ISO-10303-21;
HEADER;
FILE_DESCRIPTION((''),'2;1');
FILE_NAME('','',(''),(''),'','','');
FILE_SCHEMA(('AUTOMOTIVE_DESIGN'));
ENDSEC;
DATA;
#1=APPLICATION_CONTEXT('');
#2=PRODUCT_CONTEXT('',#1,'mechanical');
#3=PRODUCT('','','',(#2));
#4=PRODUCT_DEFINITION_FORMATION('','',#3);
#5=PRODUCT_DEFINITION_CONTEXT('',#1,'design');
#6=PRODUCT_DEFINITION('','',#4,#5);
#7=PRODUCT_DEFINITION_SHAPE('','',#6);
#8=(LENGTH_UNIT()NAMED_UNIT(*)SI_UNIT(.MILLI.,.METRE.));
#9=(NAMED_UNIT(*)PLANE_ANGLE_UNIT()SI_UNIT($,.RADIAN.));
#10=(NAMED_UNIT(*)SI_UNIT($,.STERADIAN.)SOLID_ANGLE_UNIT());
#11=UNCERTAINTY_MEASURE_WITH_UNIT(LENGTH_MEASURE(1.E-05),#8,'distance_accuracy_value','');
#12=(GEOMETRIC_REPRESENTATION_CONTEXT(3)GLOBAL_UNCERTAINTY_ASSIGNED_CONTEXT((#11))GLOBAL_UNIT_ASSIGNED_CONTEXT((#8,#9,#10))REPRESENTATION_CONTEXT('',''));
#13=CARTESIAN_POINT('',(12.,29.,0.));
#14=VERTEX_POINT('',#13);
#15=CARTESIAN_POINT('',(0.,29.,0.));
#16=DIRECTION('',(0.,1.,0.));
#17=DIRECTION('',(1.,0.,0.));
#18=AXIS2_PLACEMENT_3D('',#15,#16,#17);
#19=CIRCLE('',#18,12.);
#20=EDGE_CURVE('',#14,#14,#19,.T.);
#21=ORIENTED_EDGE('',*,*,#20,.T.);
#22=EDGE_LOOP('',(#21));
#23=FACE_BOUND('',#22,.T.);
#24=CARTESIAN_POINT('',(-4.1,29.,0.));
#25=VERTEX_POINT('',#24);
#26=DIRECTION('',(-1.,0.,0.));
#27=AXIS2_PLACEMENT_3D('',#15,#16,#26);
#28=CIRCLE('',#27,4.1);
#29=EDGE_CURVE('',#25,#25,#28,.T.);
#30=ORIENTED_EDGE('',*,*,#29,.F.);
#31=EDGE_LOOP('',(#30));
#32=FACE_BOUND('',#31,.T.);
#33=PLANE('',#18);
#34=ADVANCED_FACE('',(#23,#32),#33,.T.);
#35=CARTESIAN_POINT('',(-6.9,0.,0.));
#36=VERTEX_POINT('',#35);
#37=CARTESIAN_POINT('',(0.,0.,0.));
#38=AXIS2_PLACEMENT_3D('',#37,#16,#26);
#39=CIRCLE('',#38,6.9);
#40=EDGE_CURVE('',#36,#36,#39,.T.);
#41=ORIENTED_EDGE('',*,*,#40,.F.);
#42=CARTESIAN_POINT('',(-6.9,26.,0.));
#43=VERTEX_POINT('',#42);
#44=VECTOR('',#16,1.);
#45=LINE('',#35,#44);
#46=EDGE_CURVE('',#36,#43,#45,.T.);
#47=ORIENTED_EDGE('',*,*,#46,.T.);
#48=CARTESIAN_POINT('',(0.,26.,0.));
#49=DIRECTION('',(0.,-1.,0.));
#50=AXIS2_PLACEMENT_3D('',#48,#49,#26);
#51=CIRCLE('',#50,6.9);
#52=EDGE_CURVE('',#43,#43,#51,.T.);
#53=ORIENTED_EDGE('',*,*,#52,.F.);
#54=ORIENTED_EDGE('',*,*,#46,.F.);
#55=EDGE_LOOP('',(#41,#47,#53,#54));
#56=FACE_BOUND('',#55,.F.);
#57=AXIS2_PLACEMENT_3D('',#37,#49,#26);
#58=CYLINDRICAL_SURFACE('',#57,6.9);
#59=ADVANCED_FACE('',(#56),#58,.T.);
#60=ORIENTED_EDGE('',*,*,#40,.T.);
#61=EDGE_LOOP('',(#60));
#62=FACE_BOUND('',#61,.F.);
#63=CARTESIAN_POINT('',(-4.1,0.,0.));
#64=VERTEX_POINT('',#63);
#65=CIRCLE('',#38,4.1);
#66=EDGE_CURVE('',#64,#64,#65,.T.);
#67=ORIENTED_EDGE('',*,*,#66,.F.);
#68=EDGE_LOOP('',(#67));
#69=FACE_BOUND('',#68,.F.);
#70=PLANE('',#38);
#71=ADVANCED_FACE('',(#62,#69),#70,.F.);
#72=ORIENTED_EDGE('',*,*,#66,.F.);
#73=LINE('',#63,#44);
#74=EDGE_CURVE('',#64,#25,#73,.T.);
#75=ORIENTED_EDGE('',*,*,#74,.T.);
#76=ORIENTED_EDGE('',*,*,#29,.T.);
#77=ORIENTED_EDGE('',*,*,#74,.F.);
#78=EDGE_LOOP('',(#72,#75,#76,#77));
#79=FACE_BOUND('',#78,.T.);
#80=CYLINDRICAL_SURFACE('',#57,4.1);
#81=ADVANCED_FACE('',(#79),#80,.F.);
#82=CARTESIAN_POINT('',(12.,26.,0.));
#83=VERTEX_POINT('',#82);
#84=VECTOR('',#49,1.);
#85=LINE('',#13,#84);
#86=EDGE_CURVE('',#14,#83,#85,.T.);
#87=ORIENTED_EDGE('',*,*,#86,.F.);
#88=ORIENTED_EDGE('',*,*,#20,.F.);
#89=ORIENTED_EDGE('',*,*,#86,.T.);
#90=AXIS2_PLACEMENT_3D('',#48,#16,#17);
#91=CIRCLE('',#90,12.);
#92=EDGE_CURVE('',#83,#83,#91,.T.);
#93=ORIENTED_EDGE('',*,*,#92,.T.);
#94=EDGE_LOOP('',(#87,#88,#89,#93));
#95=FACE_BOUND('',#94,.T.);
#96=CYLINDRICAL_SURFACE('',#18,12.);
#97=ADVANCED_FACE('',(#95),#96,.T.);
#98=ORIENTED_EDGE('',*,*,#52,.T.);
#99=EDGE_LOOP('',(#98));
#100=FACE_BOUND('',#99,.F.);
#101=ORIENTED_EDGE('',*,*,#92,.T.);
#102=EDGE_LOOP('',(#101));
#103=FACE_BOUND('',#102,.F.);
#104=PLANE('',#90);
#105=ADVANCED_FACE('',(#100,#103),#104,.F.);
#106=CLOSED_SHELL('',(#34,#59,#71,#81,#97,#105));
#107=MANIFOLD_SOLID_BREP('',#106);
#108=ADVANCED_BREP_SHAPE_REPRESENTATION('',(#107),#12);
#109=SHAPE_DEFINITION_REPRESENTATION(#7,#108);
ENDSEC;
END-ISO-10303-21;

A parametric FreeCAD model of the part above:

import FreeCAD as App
import Part
import Sketcher
from FreeCAD import Vector
Q = App.Units.Quantity

doc = App.newDocument("Part")
body = doc.addObject("PartDesign::Body", "Body")

sketch1 = doc.addObject("Sketcher::SketchObject", "Sketch")
body.addObject(sketch1)
sketch1.AttachmentSupport = (doc.XZ_Plane, [""])
sketch1.MapMode = "FlatFace"
sketch1.addGeometry(Part.Circle(Vector(0, 0, 0), Vector(0, 0, 1), 6.9), False)
sketch1.addGeometry(Part.Circle(Vector(0, 0, 0), Vector(0, 0, 1), 4.1), False)
sketch1.addConstraint(Sketcher.Constraint("Coincident", 0, 3, -1, 1))
sketch1.addConstraint(Sketcher.Constraint("Coincident", 1, 3, -1, 1))
sketch1.addConstraint(Sketcher.Constraint("Diameter", 0, Q("13.8 mm")))
sketch1.addConstraint(Sketcher.Constraint("Diameter", 1, Q("8.2 mm")))
pad1 = doc.addObject("PartDesign::Pad", "Pad")
body.addObject(pad1)
pad1.Profile = sketch1
pad1.Length = 29
pad1.Reversed = True

sketch2 = doc.addObject("Sketcher::SketchObject", "Sketch001")
body.addObject(sketch2)
sketch2.AttachmentSupport = (doc.XZ_Plane, [""])
sketch2.MapMode = "FlatFace"
sketch2.AttachmentOffset = App.Placement(Vector(0, 0, -29), App.Rotation())
sketch2.addGeometry(Part.Circle(Vector(0, 0, 0), Vector(0, 0, 1), 12), False)
sketch2.addGeometry(Part.Circle(Vector(0, 0, 0), Vector(0, 0, 1), 4.1), False)
sketch2.addConstraint(Sketcher.Constraint("Coincident", 0, 3, -1, 1))
sketch2.addConstraint(Sketcher.Constraint("Coincident", 1, 3, -1, 1))
sketch2.addConstraint(Sketcher.Constraint("Diameter", 0, Q("24 mm")))
sketch2.addConstraint(Sketcher.Constraint("Diameter", 1, Q("8.2 mm")))
pad2 = doc.addObject("PartDesign::Pad", "Pad001")
body.addObject(pad2)
pad2.Profile = sketch2
pad2.Length = 3

doc.recompute()
